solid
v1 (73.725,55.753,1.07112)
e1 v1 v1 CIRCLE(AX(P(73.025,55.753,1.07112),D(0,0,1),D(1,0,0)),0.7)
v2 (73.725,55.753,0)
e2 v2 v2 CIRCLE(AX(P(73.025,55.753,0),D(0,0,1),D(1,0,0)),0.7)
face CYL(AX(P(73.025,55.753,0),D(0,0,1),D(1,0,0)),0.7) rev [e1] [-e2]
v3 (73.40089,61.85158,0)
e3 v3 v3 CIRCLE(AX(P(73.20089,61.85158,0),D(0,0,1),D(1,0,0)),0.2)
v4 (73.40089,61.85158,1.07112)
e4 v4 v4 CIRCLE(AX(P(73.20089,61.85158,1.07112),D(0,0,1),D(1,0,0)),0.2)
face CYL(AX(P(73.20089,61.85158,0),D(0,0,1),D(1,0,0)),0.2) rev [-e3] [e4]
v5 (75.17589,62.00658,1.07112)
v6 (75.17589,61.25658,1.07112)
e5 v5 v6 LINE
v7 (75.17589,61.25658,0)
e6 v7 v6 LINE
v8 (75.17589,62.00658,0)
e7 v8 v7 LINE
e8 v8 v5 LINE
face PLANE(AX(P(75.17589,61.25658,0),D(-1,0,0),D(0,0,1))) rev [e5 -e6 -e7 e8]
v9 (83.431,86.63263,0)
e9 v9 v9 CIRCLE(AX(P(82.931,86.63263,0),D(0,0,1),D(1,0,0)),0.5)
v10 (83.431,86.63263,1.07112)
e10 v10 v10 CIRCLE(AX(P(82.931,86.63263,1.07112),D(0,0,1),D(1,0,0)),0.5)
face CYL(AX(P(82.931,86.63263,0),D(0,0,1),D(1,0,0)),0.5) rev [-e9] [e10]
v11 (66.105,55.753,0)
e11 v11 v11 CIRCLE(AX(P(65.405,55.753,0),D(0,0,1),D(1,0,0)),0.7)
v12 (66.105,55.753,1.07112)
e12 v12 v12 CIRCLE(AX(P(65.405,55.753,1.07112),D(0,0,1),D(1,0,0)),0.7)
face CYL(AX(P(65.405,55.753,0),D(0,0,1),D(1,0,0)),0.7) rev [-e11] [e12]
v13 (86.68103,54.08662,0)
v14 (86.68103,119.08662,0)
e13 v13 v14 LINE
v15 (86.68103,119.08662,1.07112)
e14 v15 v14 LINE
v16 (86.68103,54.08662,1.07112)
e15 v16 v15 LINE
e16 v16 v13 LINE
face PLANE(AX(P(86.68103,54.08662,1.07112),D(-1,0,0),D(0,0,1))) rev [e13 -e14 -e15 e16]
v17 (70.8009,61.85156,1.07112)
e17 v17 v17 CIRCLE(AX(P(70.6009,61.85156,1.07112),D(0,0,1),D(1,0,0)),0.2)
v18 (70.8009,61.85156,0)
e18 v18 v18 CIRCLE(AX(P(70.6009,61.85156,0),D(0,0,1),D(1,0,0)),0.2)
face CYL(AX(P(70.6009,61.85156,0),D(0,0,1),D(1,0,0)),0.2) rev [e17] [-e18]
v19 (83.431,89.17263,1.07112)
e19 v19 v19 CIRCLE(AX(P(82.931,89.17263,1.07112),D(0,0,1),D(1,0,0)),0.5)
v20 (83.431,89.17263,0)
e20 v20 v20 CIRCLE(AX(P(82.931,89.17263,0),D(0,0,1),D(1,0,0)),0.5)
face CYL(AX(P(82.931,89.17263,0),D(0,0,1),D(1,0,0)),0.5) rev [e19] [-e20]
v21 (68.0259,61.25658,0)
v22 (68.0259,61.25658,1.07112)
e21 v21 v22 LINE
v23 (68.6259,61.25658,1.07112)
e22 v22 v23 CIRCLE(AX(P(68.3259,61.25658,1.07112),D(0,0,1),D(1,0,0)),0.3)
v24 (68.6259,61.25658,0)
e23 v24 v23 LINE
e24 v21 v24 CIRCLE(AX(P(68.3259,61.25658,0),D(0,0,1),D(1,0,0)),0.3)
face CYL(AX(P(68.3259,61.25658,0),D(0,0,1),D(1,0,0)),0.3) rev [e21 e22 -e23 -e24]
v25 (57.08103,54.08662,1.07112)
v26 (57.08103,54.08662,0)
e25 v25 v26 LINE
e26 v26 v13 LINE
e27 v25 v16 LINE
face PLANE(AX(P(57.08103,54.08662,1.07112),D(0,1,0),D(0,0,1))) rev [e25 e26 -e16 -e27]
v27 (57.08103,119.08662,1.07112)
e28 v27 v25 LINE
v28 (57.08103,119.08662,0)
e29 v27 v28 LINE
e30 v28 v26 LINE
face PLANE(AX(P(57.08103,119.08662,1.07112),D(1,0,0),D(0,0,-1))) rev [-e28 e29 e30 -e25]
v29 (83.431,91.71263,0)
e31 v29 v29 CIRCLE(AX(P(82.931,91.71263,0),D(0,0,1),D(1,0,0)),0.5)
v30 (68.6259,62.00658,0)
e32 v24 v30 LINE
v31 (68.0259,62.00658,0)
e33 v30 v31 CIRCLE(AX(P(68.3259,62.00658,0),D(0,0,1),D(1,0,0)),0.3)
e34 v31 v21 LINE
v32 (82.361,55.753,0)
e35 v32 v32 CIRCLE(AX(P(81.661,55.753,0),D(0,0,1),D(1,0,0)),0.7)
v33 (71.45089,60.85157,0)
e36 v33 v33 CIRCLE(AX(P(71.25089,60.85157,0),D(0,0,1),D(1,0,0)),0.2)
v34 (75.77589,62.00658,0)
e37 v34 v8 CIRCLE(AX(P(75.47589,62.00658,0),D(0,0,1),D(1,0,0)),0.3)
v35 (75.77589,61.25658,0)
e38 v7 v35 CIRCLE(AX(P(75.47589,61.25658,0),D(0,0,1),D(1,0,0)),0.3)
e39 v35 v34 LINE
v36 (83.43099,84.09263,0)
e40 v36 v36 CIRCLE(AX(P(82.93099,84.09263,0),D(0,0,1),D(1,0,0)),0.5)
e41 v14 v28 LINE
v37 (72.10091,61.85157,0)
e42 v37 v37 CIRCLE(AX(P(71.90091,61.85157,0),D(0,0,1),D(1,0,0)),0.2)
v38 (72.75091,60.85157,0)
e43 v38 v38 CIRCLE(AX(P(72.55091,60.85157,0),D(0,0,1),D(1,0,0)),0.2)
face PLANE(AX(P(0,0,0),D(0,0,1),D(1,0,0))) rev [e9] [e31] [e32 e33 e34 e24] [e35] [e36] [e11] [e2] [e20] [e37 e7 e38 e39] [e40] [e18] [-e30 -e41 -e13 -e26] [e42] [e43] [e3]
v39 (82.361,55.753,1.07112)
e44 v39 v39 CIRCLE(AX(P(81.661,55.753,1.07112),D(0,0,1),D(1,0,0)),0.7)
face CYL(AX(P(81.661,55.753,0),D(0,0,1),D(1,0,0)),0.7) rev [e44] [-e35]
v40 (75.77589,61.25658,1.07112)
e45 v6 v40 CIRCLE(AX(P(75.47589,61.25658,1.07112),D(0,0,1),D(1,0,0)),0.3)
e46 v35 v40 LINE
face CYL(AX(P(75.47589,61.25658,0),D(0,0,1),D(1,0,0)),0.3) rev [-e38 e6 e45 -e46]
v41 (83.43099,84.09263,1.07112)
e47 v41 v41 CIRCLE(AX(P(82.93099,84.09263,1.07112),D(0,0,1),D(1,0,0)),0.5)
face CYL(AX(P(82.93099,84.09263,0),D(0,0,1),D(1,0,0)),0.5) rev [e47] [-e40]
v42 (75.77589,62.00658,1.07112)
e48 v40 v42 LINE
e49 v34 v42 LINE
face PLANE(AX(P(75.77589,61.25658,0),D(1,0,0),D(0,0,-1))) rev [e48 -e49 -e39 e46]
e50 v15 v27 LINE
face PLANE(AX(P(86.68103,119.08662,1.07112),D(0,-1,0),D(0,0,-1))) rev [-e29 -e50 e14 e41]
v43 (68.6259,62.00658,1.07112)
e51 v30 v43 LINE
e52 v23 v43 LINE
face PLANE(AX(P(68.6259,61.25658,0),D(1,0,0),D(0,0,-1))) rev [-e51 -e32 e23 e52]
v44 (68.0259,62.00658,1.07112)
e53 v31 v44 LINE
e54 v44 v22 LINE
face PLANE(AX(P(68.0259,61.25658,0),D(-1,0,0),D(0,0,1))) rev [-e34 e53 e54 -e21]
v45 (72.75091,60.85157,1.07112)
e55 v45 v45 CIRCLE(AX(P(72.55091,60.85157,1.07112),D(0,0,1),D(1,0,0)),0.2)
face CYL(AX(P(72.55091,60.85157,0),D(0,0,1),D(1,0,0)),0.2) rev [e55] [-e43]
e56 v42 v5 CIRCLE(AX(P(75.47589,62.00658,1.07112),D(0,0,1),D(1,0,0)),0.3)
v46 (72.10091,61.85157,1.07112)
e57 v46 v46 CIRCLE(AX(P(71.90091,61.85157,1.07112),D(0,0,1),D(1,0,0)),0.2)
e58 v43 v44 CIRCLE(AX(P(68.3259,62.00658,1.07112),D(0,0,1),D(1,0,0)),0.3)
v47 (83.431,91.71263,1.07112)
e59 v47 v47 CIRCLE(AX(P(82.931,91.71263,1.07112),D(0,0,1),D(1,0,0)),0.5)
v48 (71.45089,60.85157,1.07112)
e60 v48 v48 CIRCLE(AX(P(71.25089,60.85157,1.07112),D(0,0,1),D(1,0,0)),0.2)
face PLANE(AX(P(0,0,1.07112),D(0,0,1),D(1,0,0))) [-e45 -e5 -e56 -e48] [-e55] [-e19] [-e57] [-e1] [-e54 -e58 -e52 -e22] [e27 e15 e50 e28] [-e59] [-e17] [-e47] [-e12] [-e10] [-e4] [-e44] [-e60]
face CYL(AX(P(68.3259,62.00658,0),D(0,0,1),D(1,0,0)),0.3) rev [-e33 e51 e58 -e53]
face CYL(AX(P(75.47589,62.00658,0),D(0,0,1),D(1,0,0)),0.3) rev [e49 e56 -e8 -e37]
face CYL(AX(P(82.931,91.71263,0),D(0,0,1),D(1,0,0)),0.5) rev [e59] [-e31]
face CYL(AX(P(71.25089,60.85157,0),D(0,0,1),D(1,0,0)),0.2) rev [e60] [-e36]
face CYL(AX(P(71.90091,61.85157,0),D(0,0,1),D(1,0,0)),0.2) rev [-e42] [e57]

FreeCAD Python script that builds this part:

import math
import FreeCAD as App
import Part
import Sketcher

doc = App.newDocument("Part")
body = doc.addObject("PartDesign::Body", "Body")

sketch1 = body.newObject("Sketcher::SketchObject", "Sketch")
sketch1.AttachmentSupport = (doc.getObject("XY_Plane"), [""])
sketch1.MapMode = "FlatFace"
sketch1.addGeometry(Part.LineSegment(App.Vector(57, 119, 0), App.Vector(57, 54, 0)), False)
sketch1.addGeometry(Part.LineSegment(App.Vector(57, 54, 0), App.Vector(87, 54, 0)), False)
sketch1.addGeometry(Part.LineSegment(App.Vector(87, 54, 0), App.Vector(87, 119, 0)), False)
sketch1.addGeometry(Part.LineSegment(App.Vector(87, 119, 0), App.Vector(57, 119, 0)), False)
sketch1.addConstraint(Sketcher.Constraint("Coincident", 0, 2, 1, 1))
sketch1.addConstraint(Sketcher.Constraint("Coincident", 1, 2, 2, 1))
sketch1.addConstraint(Sketcher.Constraint("Coincident", 2, 2, 3, 1))
sketch1.addConstraint(Sketcher.Constraint("Coincident", 3, 2, 0, 1))
sketch1.addConstraint(Sketcher.Constraint("Vertical", 0))
sketch1.addConstraint(Sketcher.Constraint("Horizontal", 1))
sketch1.addConstraint(Sketcher.Constraint("Vertical", 2))
sketch1.addConstraint(Sketcher.Constraint("Horizontal", 3))
sketch1.addConstraint(Sketcher.Constraint("DistanceY", 0, 2, 0, 1, 65.0))
sketch1.addConstraint(Sketcher.Constraint("DistanceX", 1, 1, 1, 2, 29.6))
sketch1.addConstraint(Sketcher.Constraint("DistanceX", -1, 1, 0, 2, 57.08103))
sketch1.addConstraint(Sketcher.Constraint("DistanceY", -1, 1, 0, 2, 54.08662))
pad1 = body.newObject("PartDesign::Pad", "Pad")
pad1.Profile = sketch1
pad1.Length = 1.07112

sketch2 = body.newObject("Sketcher::SketchObject", "Sketch001")
sketch2.AttachmentSupport = (doc.getObject("XY_Plane"), [""])
sketch2.MapMode = "FlatFace"
sketch2.AttachmentOffset = App.Placement(App.Vector(0, 0, 1.07112), App.Rotation())
sketch2.addGeometry(Part.Circle(App.Vector(82.9, 84.1, 0), App.Vector(0, 0, 1), 0.5), False)
sketch2.addConstraint(Sketcher.Constraint("Diameter", 0, 1.0))
sketch2.addConstraint(Sketcher.Constraint("DistanceX", -1, 1, 0, 3, 82.93099))
sketch2.addConstraint(Sketcher.Constraint("DistanceY", -1, 1, 0, 3, 84.09263))
pocket1 = body.newObject("PartDesign::Pocket", "Pocket")
pocket1.Profile = sketch2
pocket1.Length = 1.07112

sketch3 = body.newObject("Sketcher::SketchObject", "Sketch002")
sketch3.AttachmentSupport = (doc.getObject("XY_Plane"), [""])
sketch3.MapMode = "FlatFace"
sketch3.AttachmentOffset = App.Placement(App.Vector(0, 0, 1.07112), App.Rotation())
sketch3.addGeometry(Part.Circle(App.Vector(82.9, 86.6, 0), App.Vector(0, 0, 1), 0.5), False)
sketch3.addConstraint(Sketcher.Constraint("Diameter", 0, 1.0))
sketch3.addConstraint(Sketcher.Constraint("DistanceX", -1, 1, 0, 3, 82.931))
sketch3.addConstraint(Sketcher.Constraint("DistanceY", -1, 1, 0, 3, 86.63263))
pocket2 = body.newObject("PartDesign::Pocket", "Pocket001")
pocket2.Profile = sketch3
pocket2.Type = "ThroughAll"

sketch4 = body.newObject("Sketcher::SketchObject", "Sketch003")
sketch4.AttachmentSupport = (doc.getObject("XY_Plane"), [""])
sketch4.MapMode = "FlatFace"
sketch4.AttachmentOffset = App.Placement(App.Vector(0, 0, 1.07112), App.Rotation())
sketch4.addGeometry(Part.Circle(App.Vector(82.9, 89.2, 0), App.Vector(0, 0, 1), 0.5), False)
sketch4.addConstraint(Sketcher.Constraint("Diameter", 0, 1.0))
sketch4.addConstraint(Sketcher.Constraint("DistanceX", -1, 1, 0, 3, 82.931))
sketch4.addConstraint(Sketcher.Constraint("DistanceY", -1, 1, 0, 3, 89.17263))
pocket3 = body.newObject("PartDesign::Pocket", "Pocket002")
pocket3.Profile = sketch4
pocket3.Type = "ThroughAll"

sketch5 = body.newObject("Sketcher::SketchObject", "Sketch004")
sketch5.AttachmentSupport = (doc.getObject("XY_Plane"), [""])
sketch5.MapMode = "FlatFace"
sketch5.AttachmentOffset = App.Placement(App.Vector(0, 0, 1.07112), App.Rotation())
sketch5.addGeometry(Part.Circle(App.Vector(82.9, 91.7, 0), App.Vector(0, 0, 1), 0.5), False)
sketch5.addConstraint(Sketcher.Constraint("Diameter", 0, 1.0))
sketch5.addConstraint(Sketcher.Constraint("DistanceX", -1, 1, 0, 3, 82.931))
sketch5.addConstraint(Sketcher.Constraint("DistanceY", -1, 1, 0, 3, 91.71263))
pocket4 = body.newObject("PartDesign::Pocket", "Pocket003")
pocket4.Profile = sketch5
pocket4.Type = "ThroughAll"

sketch6 = body.newObject("Sketcher::SketchObject", "Sketch005")
sketch6.AttachmentSupport = (doc.getObject("XY_Plane"), [""])
sketch6.MapMode = "FlatFace"
sketch6.AttachmentOffset = App.Placement(App.Vector(0, 0, 1.07112), App.Rotation())
sketch6.addGeometry(Part.Circle(App.Vector(73, 55.8, 0), App.Vector(0, 0, 1), 0.7), False)
sketch6.addConstraint(Sketcher.Constraint("Diameter", 0, 1.4))
sketch6.addConstraint(Sketcher.Constraint("DistanceX", -1, 1, 0, 3, 73.025))
sketch6.addConstraint(Sketcher.Constraint("DistanceY", -1, 1, 0, 3, 55.753))
pocket5 = body.newObject("PartDesign::Pocket", "Pocket004")
pocket5.Profile = sketch6
pocket5.Type = "ThroughAll"

sketch7 = body.newObject("Sketcher::SketchObject", "Sketch006")
sketch7.AttachmentSupport = (doc.getObject("XY_Plane"), [""])
sketch7.MapMode = "FlatFace"
sketch7.AttachmentOffset = App.Placement(App.Vector(0, 0, 1.07112), App.Rotation())
sketch7.addGeometry(Part.Circle(App.Vector(81.7, 55.8, 0), App.Vector(0, 0, 1), 0.7), False)
sketch7.addConstraint(Sketcher.Constraint("Diameter", 0, 1.4))
sketch7.addConstraint(Sketcher.Constraint("DistanceX", -1, 1, 0, 3, 81.661))
sketch7.addConstraint(Sketcher.Constraint("DistanceY", -1, 1, 0, 3, 55.753))
pocket6 = body.newObject("PartDesign::Pocket", "Pocket005")
pocket6.Profile = sketch7
pocket6.Type = "ThroughAll"

sketch8 = body.newObject("Sketcher::SketchObject", "Sketch007")
sketch8.AttachmentSupport = (doc.getObject("XY_Plane"), [""])
sketch8.MapMode = "FlatFace"
sketch8.AttachmentOffset = App.Placement(App.Vector(0, 0, 1.07112), App.Rotation())
sketch8.addGeometry(Part.Circle(App.Vector(65.4, 55.8, 0), App.Vector(0, 0, 1), 0.7), False)
sketch8.addConstraint(Sketcher.Constraint("Diameter", 0, 1.4))
sketch8.addConstraint(Sketcher.Constraint("DistanceX", -1, 1, 0, 3, 65.405))
sketch8.addConstraint(Sketcher.Constraint("DistanceY", -1, 1, 0, 3, 55.753))
pocket7 = body.newObject("PartDesign::Pocket", "Pocket006")
pocket7.Profile = sketch8
pocket7.Type = "ThroughAll"

sketch9 = body.newObject("Sketcher::SketchObject", "Sketch008")
sketch9.AttachmentSupport = (doc.getObject("XY_Plane"), [""])
sketch9.MapMode = "FlatFace"
sketch9.AttachmentOffset = App.Placement(App.Vector(0, 0, 1.07112), App.Rotation())
sketch9.addGeometry(Part.LineSegment(App.Vector(68.03, 62.01, 0), App.Vector(68.03, 61.26, 0)), False)
sketch9.addGeometry(Part.ArcOfCircle(Part.Circle(App.Vector(68.33, 61.26, 0), App.Vector(0, 0, 1), 0.3), math.radians(180), math.radians(360)), False)
sketch9.addGeometry(Part.LineSegment(App.Vector(68.63, 61.26, 0), App.Vector(68.63, 62.01, 0)), False)
sketch9.addGeometry(Part.ArcOfCircle(Part.Circle(App.Vector(68.33, 62.01, 0), App.Vector(0, 0, 1), 0.3), math.radians(0), math.radians(180)), False)
sketch9.addConstraint(Sketcher.Constraint("Tangent", 0, 2, 1, 1))
sketch9.addConstraint(Sketcher.Constraint("Tangent", 1, 2, 2, 1))
sketch9.addConstraint(Sketcher.Constraint("Tangent", 2, 2, 3, 1))
sketch9.addConstraint(Sketcher.Constraint("Tangent", 3, 2, 0, 1))
sketch9.addConstraint(Sketcher.Constraint("Vertical", 0))
sketch9.addConstraint(Sketcher.Constraint("Vertical", 2))
sketch9.addConstraint(Sketcher.Constraint("Radius", 1, 0.3))
sketch9.addConstraint(Sketcher.Constraint("DistanceY", 0, 2, 0, 1, 0.75))
sketch9.addConstraint(Sketcher.Constraint("DistanceX", -1, 1, 1, 3, 68.3259))
sketch9.addConstraint(Sketcher.Constraint("DistanceY", -1, 1, 1, 3, 61.25658))
pocket8 = body.newObject("PartDesign::Pocket", "Pocket007")
pocket8.Profile = sketch9
pocket8.Type = "ThroughAll"

sketch10 = body.newObject("Sketcher::SketchObject", "Sketch009")
sketch10.AttachmentSupport = (doc.getObject("XY_Plane"), [""])
sketch10.MapMode = "FlatFace"
sketch10.AttachmentOffset = App.Placement(App.Vector(0, 0, 1.07112), App.Rotation())
sketch10.addGeometry(Part.LineSegment(App.Vector(75.18, 62.01, 0), App.Vector(75.18, 61.26, 0)), False)
sketch10.addGeometry(Part.ArcOfCircle(Part.Circle(App.Vector(75.48, 61.26, 0), App.Vector(0, 0, 1), 0.3), math.radians(180), math.radians(360)), False)
sketch10.addGeometry(Part.LineSegment(App.Vector(75.78, 61.26, 0), App.Vector(75.78, 62.01, 0)), False)
sketch10.addGeometry(Part.ArcOfCircle(Part.Circle(App.Vector(75.48, 62.01, 0), App.Vector(0, 0, 1), 0.3), math.radians(0), math.radians(180)), False)
sketch10.addConstraint(Sketcher.Constraint("Tangent", 0, 2, 1, 1))
sketch10.addConstraint(Sketcher.Constraint("Tangent", 1, 2, 2, 1))
sketch10.addConstraint(Sketcher.Constraint("Tangent", 2, 2, 3, 1))
sketch10.addConstraint(Sketcher.Constraint("Tangent", 3, 2, 0, 1))
sketch10.addConstraint(Sketcher.Constraint("Vertical", 0))
sketch10.addConstraint(Sketcher.Constraint("Vertical", 2))
sketch10.addConstraint(Sketcher.Constraint("Radius", 1, 0.3))
sketch10.addConstraint(Sketcher.Constraint("DistanceY", 0, 2, 0, 1, 0.75))
sketch10.addConstraint(Sketcher.Constraint("DistanceX", -1, 1, 1, 3, 75.47589))
sketch10.addConstraint(Sketcher.Constraint("DistanceY", -1, 1, 1, 3, 61.25658))
pocket9 = body.newObject("PartDesign::Pocket", "Pocket008")
pocket9.Profile = sketch10
pocket9.Type = "ThroughAll"

sketch11 = body.newObject("Sketcher::SketchObject", "Sketch010")
sketch11.AttachmentSupport = (doc.getObject("XY_Plane"), [""])
sketch11.MapMode = "FlatFace"
sketch11.AttachmentOffset = App.Placement(App.Vector(0, 0, 1.07112), App.Rotation())
sketch11.addGeometry(Part.Circle(App.Vector(70.6, 61.85, 0), App.Vector(0, 0, 1), 0.2), False)
sketch11.addConstraint(Sketcher.Constraint("Diameter", 0, 0.4))
sketch11.addConstraint(Sketcher.Constraint("DistanceX", -1, 1, 0, 3, 70.6009))
sketch11.addConstraint(Sketcher.Constraint("DistanceY", -1, 1, 0, 3, 61.85156))
pocket10 = body.newObject("PartDesign::Pocket", "Pocket009")
pocket10.Profile = sketch11
pocket10.Type = "ThroughAll"

sketch12 = body.newObject("Sketcher::SketchObject", "Sketch011")
sketch12.AttachmentSupport = (doc.getObject("XY_Plane"), [""])
sketch12.MapMode = "FlatFace"
sketch12.AttachmentOffset = App.Placement(App.Vector(0, 0, 1.07112), App.Rotation())
sketch12.addGeometry(Part.Circle(App.Vector(71.25, 60.85, 0), App.Vector(0, 0, 1), 0.2), False)
sketch12.addConstraint(Sketcher.Constraint("Diameter", 0, 0.4))
sketch12.addConstraint(Sketcher.Constraint("DistanceX", -1, 1, 0, 3, 71.25089))
sketch12.addConstraint(Sketcher.Constraint("DistanceY", -1, 1, 0, 3, 60.85157))
pocket11 = body.newObject("PartDesign::Pocket", "Pocket010")
pocket11.Profile = sketch12
pocket11.Type = "ThroughAll"

sketch13 = body.newObject("Sketcher::SketchObject", "Sketch012")
sketch13.AttachmentSupport = (doc.getObject("XY_Plane"), [""])
sketch13.MapMode = "FlatFace"
sketch13.AttachmentOffset = App.Placement(App.Vector(0, 0, 1.07112), App.Rotation())
sketch13.addGeometry(Part.Circle(App.Vector(71.9, 61.85, 0), App.Vector(0, 0, 1), 0.2), False)
sketch13.addConstraint(Sketcher.Constraint("Diameter", 0, 0.4))
sketch13.addConstraint(Sketcher.Constraint("DistanceX", -1, 1, 0, 3, 71.90091))
sketch13.addConstraint(Sketcher.Constraint("DistanceY", -1, 1, 0, 3, 61.85157))
pocket12 = body.newObject("PartDesign::Pocket", "Pocket011")
pocket12.Profile = sketch13
pocket12.Type = "ThroughAll"

sketch14 = body.newObject("Sketcher::SketchObject", "Sketch013")
sketch14.AttachmentSupport = (doc.getObject("XY_Plane"), [""])
sketch14.MapMode = "FlatFace"
sketch14.AttachmentOffset = App.Placement(App.Vector(0, 0, 1.07112), App.Rotation())
sketch14.addGeometry(Part.Circle(App.Vector(72.55, 60.85, 0), App.Vector(0, 0, 1), 0.2), False)
sketch14.addConstraint(Sketcher.Constraint("Diameter", 0, 0.4))
sketch14.addConstraint(Sketcher.Constraint("DistanceX", -1, 1, 0, 3, 72.55091))
sketch14.addConstraint(Sketcher.Constraint("DistanceY", -1, 1, 0, 3, 60.85157))
pocket13 = body.newObject("PartDesign::Pocket", "Pocket012")
pocket13.Profile = sketch14
pocket13.Type = "ThroughAll"

sketch15 = body.newObject("Sketcher::SketchObject", "Sketch014")
sketch15.AttachmentSupport = (doc.getObject("XY_Plane"), [""])
sketch15.MapMode = "FlatFace"
sketch15.AttachmentOffset = App.Placement(App.Vector(0, 0, 1.07112), App.Rotation())
sketch15.addGeometry(Part.Circle(App.Vector(73.2, 61.85, 0), App.Vector(0, 0, 1), 0.2), False)
sketch15.addConstraint(Sketcher.Constraint("Diameter", 0, 0.4))
sketch15.addConstraint(Sketcher.Constraint("DistanceX", -1, 1, 0, 3, 73.20089))
sketch15.addConstraint(Sketcher.Constraint("DistanceY", -1, 1, 0, 3, 61.85158))
pocket14 = body.newObject("PartDesign::Pocket", "Pocket013")
pocket14.Profile = sketch15
pocket14.Type = "ThroughAll"

doc.recompute()
